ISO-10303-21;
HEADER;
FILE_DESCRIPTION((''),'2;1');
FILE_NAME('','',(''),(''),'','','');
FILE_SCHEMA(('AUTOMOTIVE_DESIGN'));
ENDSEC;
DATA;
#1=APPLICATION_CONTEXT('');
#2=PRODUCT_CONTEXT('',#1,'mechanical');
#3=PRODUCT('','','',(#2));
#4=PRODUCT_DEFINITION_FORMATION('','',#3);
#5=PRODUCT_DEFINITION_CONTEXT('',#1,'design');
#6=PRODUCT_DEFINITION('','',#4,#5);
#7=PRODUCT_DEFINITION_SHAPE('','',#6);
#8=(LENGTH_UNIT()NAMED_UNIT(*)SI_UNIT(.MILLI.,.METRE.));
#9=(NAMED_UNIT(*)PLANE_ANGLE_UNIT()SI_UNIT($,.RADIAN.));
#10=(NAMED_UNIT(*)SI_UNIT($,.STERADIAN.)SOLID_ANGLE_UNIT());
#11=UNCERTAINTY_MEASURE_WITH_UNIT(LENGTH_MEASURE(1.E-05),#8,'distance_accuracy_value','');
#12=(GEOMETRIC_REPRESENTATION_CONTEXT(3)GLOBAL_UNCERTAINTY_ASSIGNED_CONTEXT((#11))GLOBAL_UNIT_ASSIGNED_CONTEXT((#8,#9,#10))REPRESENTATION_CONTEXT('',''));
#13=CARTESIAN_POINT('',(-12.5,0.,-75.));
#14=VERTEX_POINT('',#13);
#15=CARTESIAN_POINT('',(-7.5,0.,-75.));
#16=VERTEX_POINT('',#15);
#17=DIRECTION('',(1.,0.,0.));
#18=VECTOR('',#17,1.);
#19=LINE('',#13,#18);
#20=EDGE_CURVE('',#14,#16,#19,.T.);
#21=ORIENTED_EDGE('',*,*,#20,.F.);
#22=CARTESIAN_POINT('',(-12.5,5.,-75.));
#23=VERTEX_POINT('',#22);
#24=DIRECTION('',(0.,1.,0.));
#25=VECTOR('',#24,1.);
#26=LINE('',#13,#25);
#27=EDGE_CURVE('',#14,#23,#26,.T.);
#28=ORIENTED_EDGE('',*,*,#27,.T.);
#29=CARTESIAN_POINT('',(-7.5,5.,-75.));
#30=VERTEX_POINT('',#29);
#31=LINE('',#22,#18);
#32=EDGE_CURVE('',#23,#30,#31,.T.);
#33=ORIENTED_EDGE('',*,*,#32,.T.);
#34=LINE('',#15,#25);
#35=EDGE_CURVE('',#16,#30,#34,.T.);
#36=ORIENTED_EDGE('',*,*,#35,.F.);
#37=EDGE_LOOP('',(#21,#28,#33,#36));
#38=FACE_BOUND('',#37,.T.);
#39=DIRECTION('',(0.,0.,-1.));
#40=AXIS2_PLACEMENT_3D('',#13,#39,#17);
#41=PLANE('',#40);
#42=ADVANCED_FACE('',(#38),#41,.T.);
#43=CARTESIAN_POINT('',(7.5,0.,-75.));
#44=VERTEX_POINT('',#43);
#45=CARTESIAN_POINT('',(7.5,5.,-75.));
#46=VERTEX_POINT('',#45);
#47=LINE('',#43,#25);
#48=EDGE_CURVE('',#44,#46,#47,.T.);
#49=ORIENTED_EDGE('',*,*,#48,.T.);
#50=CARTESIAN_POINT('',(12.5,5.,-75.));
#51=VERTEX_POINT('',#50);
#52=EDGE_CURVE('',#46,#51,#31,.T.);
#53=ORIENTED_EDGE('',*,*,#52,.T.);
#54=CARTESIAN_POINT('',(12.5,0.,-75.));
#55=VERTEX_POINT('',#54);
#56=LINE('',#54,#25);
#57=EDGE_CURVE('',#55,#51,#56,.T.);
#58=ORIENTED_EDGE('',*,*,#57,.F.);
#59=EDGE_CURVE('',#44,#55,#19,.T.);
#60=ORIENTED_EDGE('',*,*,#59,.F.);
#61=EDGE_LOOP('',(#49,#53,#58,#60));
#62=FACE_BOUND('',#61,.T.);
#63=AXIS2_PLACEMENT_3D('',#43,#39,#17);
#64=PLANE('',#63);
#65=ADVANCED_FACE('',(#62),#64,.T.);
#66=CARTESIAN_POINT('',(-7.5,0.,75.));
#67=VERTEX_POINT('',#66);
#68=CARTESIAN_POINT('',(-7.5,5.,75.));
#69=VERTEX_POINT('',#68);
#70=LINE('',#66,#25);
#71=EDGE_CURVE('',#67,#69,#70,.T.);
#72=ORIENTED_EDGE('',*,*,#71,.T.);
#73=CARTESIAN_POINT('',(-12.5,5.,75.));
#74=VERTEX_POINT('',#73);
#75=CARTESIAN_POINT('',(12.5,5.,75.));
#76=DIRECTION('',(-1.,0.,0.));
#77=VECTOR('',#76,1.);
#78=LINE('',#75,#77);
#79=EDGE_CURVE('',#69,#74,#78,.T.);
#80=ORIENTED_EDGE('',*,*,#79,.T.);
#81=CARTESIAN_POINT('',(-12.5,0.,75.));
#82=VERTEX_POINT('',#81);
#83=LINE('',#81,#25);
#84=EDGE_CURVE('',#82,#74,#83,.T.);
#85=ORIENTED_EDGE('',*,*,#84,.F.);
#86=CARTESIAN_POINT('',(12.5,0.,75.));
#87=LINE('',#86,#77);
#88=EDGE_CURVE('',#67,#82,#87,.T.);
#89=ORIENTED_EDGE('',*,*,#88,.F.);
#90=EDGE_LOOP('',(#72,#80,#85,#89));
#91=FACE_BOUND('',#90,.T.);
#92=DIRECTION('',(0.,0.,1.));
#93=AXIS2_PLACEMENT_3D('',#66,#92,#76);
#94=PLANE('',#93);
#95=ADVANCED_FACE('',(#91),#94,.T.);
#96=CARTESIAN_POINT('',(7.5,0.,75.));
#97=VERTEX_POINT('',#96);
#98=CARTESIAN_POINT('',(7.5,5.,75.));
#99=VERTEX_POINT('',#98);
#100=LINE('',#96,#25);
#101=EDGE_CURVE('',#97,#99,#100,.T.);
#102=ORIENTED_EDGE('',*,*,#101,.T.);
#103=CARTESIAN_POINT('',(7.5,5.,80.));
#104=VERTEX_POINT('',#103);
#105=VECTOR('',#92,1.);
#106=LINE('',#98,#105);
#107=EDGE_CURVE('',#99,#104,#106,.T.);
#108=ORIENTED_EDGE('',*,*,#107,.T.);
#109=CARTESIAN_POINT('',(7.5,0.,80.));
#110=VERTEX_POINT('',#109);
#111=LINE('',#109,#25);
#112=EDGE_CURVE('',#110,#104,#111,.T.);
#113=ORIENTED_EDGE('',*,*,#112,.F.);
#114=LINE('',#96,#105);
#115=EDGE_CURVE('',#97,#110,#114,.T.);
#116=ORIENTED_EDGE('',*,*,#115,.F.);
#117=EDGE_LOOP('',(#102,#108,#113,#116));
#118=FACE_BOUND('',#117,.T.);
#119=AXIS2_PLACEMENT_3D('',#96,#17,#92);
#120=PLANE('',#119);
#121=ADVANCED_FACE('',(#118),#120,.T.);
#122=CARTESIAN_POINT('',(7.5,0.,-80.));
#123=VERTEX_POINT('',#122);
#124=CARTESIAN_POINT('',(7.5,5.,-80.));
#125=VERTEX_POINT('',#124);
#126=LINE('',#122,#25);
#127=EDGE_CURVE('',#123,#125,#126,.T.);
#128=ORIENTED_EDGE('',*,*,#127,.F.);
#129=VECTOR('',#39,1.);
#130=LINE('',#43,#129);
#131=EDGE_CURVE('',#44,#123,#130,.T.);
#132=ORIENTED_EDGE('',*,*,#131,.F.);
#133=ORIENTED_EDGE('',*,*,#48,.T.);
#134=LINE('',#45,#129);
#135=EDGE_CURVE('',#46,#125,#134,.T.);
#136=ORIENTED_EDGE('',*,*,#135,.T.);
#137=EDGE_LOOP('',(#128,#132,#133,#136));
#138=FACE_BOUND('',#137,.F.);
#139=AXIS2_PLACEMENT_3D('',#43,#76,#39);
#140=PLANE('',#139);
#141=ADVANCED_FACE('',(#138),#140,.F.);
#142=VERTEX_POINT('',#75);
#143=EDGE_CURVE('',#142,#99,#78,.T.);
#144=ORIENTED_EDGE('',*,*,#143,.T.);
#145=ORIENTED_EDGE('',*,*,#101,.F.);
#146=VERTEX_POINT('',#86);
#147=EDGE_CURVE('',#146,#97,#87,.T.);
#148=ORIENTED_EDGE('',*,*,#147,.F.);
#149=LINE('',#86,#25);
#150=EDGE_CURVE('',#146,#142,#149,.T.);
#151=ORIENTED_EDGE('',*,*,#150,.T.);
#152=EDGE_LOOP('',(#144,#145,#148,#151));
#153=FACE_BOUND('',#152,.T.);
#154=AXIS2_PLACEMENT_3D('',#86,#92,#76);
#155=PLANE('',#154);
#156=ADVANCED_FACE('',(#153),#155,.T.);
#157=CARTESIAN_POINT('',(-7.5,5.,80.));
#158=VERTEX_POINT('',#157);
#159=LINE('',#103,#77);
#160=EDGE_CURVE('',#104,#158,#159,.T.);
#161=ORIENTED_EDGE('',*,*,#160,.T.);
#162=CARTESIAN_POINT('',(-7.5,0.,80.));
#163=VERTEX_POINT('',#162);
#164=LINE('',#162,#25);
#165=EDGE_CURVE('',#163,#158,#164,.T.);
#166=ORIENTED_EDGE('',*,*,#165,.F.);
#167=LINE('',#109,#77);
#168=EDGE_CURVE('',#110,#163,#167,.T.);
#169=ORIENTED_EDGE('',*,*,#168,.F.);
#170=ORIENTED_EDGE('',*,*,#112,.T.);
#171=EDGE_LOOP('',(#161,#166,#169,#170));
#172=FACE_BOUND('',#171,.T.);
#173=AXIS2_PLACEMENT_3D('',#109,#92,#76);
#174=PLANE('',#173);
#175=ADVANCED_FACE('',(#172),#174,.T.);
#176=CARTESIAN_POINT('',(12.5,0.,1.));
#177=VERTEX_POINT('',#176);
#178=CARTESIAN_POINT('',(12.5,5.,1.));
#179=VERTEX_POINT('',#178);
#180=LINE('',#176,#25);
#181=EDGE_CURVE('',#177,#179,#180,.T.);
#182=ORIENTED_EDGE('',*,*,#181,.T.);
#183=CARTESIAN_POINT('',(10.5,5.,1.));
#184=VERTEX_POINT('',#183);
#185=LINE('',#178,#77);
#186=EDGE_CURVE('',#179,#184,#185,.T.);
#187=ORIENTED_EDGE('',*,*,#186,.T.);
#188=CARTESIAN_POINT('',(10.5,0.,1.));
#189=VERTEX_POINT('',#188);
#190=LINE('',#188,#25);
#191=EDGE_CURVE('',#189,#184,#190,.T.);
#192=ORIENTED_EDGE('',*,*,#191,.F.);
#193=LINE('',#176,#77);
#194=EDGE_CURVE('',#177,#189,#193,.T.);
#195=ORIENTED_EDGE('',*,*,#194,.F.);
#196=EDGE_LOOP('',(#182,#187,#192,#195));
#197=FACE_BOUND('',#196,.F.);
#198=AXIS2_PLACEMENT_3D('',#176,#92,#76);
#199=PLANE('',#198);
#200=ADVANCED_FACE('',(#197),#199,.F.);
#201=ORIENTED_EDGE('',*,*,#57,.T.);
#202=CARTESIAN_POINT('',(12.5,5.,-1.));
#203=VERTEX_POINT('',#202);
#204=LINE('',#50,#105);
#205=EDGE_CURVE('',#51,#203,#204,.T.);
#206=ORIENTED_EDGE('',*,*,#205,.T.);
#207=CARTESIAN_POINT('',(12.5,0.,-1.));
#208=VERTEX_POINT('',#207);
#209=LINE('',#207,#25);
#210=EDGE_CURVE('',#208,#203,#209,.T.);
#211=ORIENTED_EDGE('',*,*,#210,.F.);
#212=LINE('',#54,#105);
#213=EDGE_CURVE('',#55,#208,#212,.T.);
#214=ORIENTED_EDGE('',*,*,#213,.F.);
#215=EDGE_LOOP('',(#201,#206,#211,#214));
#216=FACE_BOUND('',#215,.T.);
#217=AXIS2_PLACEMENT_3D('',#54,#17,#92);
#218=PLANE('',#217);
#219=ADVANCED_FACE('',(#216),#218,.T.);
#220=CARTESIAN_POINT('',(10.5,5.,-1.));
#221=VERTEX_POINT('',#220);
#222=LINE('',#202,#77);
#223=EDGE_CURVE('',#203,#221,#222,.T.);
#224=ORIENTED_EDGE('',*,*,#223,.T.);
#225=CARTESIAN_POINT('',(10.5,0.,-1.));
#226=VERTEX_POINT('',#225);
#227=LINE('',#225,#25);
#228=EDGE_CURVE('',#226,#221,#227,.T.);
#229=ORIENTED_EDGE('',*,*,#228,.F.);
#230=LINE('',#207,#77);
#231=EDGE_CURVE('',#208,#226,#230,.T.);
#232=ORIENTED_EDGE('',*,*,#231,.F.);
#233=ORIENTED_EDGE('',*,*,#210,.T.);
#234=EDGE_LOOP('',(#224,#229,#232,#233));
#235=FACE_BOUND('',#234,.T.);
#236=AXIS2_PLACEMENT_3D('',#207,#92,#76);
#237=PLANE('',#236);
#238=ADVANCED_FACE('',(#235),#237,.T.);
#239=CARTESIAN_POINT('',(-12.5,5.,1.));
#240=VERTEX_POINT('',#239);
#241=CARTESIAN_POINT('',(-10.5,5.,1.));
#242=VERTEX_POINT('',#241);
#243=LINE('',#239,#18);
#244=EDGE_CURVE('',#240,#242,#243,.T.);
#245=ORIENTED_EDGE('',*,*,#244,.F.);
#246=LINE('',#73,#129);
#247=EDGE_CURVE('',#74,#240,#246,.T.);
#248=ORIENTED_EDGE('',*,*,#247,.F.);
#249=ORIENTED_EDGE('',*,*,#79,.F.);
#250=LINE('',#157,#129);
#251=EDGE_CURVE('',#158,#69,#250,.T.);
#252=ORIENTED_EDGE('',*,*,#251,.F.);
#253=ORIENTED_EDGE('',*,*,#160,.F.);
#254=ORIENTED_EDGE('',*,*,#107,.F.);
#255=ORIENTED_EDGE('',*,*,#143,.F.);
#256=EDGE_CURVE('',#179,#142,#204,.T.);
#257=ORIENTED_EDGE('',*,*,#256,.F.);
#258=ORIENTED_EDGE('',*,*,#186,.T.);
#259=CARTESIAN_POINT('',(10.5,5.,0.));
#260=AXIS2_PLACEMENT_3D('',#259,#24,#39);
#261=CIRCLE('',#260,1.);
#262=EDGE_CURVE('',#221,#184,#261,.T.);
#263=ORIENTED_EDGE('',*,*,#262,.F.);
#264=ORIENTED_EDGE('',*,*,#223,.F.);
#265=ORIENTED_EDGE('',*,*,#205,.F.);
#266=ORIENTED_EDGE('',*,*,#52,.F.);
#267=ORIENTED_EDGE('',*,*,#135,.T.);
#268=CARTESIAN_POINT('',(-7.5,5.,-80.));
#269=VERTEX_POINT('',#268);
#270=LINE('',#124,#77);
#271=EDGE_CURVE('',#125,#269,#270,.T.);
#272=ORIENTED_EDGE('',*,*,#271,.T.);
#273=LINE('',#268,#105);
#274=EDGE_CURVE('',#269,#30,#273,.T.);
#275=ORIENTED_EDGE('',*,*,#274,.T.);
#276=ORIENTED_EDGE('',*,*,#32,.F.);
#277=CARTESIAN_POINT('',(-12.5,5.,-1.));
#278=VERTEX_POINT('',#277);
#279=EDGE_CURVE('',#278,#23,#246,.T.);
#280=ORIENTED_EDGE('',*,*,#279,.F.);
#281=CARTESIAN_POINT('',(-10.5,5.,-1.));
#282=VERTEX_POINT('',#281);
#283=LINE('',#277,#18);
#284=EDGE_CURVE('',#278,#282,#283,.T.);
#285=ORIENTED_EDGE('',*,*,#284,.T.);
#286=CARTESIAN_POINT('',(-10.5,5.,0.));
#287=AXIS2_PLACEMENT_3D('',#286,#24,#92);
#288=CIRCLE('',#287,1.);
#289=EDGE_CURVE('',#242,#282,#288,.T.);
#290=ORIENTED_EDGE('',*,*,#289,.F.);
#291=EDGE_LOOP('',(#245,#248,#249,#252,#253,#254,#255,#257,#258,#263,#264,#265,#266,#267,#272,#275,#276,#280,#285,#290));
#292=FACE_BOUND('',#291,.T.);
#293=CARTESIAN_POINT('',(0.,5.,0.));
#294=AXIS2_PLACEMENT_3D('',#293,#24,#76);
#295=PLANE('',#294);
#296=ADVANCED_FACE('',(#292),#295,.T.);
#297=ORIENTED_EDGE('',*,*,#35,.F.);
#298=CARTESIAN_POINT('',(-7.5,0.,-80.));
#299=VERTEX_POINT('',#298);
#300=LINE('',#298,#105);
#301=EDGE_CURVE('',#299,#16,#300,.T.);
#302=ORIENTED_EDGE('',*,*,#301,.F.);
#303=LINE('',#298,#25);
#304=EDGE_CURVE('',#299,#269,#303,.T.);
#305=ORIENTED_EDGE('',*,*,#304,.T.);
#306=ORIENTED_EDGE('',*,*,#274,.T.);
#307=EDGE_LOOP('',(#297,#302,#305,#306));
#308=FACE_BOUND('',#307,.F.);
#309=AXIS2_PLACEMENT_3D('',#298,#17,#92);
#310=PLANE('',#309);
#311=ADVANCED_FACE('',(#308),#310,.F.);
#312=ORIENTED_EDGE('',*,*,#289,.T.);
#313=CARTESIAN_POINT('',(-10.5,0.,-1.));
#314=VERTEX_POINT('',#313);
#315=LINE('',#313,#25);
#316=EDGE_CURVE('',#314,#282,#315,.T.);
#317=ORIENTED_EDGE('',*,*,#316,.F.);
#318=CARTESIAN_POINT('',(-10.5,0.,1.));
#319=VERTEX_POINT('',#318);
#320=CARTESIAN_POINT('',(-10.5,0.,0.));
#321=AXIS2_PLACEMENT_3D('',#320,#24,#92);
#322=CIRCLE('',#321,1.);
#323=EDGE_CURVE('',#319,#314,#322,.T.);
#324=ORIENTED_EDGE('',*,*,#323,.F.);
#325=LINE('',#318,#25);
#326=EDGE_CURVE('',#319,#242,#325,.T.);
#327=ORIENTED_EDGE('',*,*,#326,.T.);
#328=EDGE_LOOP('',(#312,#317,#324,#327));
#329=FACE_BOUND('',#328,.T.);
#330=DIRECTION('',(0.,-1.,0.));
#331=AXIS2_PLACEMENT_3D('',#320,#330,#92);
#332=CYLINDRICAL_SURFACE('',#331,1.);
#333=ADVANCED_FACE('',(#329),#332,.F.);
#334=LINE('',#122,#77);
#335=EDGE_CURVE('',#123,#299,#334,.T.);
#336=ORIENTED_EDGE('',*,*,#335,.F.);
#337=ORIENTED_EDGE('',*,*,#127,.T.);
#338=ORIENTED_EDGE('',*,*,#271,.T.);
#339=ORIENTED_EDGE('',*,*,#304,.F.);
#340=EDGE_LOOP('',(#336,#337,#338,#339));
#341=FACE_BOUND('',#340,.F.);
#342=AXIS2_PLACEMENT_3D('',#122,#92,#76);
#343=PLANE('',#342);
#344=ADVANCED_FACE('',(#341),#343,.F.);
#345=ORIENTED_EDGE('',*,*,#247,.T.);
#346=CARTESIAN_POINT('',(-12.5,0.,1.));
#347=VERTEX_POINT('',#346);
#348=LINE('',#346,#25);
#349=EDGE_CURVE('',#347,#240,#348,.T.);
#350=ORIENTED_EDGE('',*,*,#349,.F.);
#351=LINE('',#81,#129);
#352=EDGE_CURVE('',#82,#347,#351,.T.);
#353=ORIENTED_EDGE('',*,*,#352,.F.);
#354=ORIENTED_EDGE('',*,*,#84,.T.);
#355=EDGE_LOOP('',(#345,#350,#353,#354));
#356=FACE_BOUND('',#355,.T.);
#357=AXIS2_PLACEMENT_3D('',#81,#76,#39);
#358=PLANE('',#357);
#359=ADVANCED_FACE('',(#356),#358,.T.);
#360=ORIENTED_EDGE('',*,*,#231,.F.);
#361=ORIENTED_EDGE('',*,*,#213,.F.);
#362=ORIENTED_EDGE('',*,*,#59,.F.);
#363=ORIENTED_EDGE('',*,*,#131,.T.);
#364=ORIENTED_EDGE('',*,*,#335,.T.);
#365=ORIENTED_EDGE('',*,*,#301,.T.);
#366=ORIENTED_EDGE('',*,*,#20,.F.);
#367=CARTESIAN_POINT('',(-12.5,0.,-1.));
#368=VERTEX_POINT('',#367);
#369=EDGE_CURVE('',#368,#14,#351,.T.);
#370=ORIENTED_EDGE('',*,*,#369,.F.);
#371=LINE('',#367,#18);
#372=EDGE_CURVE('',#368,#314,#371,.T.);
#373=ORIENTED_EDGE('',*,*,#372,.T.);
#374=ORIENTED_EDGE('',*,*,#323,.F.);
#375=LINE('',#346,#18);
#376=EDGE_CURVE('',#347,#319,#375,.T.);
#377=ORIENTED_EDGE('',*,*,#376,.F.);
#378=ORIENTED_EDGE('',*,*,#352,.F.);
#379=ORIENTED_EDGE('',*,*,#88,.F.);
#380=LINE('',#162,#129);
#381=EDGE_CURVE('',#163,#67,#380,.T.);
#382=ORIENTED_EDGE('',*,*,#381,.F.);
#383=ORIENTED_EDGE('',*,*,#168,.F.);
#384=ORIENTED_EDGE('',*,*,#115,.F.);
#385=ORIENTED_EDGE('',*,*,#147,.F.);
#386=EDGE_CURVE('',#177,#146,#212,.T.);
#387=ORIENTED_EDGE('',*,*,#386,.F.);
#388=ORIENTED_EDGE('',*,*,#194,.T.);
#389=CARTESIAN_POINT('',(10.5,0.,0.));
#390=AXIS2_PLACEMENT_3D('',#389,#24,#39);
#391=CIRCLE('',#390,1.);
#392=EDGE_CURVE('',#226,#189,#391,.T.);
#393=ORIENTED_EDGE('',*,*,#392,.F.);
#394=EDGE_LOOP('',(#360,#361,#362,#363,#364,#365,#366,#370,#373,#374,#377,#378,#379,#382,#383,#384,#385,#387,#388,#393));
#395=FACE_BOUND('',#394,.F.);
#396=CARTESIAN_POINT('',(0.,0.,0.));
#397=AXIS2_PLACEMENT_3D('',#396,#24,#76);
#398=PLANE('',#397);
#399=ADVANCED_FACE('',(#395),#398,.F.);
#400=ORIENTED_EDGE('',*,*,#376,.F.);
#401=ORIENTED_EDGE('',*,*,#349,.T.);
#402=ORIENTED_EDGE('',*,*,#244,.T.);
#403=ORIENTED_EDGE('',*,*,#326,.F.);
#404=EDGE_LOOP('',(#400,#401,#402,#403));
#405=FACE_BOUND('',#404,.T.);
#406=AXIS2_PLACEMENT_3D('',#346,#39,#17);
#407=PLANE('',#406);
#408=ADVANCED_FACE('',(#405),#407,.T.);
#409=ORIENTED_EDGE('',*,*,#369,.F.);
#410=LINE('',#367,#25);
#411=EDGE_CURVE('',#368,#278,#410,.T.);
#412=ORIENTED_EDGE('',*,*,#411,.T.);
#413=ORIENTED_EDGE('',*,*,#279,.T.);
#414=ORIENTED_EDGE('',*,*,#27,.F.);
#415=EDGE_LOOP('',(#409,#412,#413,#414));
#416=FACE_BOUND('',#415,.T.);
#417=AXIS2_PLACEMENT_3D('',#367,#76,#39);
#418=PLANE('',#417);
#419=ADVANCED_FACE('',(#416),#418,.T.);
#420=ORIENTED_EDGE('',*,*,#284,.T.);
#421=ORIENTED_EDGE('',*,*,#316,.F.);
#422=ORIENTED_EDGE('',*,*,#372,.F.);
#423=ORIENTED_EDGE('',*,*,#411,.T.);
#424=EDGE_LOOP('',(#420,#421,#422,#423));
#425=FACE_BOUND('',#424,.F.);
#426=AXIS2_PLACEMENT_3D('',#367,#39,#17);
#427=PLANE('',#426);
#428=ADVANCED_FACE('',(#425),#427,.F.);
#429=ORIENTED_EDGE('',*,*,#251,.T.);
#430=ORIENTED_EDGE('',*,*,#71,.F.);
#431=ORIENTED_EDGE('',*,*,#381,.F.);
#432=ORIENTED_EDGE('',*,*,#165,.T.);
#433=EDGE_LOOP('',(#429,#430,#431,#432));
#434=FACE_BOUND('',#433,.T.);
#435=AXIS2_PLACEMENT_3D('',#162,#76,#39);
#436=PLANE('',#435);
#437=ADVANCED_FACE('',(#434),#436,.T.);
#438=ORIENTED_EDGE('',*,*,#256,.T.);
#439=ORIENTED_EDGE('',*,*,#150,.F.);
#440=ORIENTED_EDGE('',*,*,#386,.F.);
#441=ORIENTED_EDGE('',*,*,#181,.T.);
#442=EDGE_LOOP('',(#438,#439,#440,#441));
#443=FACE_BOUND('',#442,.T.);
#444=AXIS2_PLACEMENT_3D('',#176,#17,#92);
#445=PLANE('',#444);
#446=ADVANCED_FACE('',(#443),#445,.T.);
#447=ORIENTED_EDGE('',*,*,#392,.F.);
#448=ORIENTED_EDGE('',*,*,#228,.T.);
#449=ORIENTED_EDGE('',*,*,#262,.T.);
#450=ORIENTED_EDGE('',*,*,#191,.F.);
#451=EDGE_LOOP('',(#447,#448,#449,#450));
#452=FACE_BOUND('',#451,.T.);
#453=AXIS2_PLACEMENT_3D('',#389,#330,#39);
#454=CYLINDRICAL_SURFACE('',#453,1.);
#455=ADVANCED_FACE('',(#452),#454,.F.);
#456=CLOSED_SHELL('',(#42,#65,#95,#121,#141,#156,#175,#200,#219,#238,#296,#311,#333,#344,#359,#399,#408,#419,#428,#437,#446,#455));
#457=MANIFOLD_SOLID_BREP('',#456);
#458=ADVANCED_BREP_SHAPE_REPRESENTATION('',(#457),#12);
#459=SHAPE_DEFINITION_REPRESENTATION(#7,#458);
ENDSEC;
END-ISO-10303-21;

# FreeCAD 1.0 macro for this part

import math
import FreeCAD as App
import Part
import Sketcher

V = App.Vector

doc = App.newDocument("Part")
body = doc.addObject("PartDesign::Body", "Body")

sketch1 = doc.addObject("Sketcher::SketchObject", "Sketch")
body.addObject(sketch1)
sketch1.AttachmentSupport = (doc.XZ_Plane, [""])
sketch1.MapMode = "FlatFace"
sketch1.addGeometry([
    Part.LineSegment(V(-7.5, -75, 0), V(-12.5, -75, 0)),
    Part.LineSegment(V(-12.5, -75, 0), V(-12.5, -1, 0)),
    Part.LineSegment(V(-12.5, -1, 0), V(-10.5, -1, 0)),
    Part.ArcOfCircle(Part.Circle(V(-10.5, 0, 0), V(0, 0, 1), 1), math.radians(-90), math.radians(90)),
    Part.LineSegment(V(-10.5, 1, 0), V(-12.5, 1, 0)),
    Part.LineSegment(V(-12.5, 1, 0), V(-12.5, 75, 0)),
    Part.LineSegment(V(-12.5, 75, 0), V(-7.5, 75, 0)),
    Part.LineSegment(V(-7.5, 75, 0), V(-7.5, 80, 0)),
    Part.LineSegment(V(-7.5, 80, 0), V(7.5, 80, 0)),
    Part.LineSegment(V(7.5, 80, 0), V(7.5, 75, 0)),
    Part.LineSegment(V(7.5, 75, 0), V(12.5, 75, 0)),
    Part.LineSegment(V(12.5, 75, 0), V(12.5, 1, 0)),
    Part.LineSegment(V(12.5, 1, 0), V(10.5, 1, 0)),
    Part.ArcOfCircle(Part.Circle(V(10.5, 0, 0), V(0, 0, 1), 1), math.radians(90), math.radians(270)),
    Part.LineSegment(V(10.5, -1, 0), V(12.5, -1, 0)),
    Part.LineSegment(V(12.5, -1, 0), V(12.5, -75, 0)),
    Part.LineSegment(V(12.5, -75, 0), V(7.5, -75, 0)),
    Part.LineSegment(V(7.5, -75, 0), V(7.5, -80, 0)),
    Part.LineSegment(V(7.5, -80, 0), V(-7.5, -80, 0)),
    Part.LineSegment(V(-7.5, -80, 0), V(-7.5, -75, 0)),
], False)
sketch1.addConstraint([
    Sketcher.Constraint("Coincident", 0, 2, 1, 1),
    Sketcher.Constraint("Coincident", 1, 2, 2, 1),
    Sketcher.Constraint("Tangent", 2, 2, 3, 1),
    Sketcher.Constraint("Tangent", 3, 2, 4, 1),
    Sketcher.Constraint("Coincident", 4, 2, 5, 1),
    Sketcher.Constraint("Coincident", 5, 2, 6, 1),
    Sketcher.Constraint("Coincident", 6, 2, 7, 1),
    Sketcher.Constraint("Coincident", 7, 2, 8, 1),
    Sketcher.Constraint("Coincident", 8, 2, 9, 1),
    Sketcher.Constraint("Coincident", 9, 2, 10, 1),
    Sketcher.Constraint("Coincident", 10, 2, 11, 1),
    Sketcher.Constraint("Coincident", 11, 2, 12, 1),
    Sketcher.Constraint("Tangent", 12, 2, 13, 1),
    Sketcher.Constraint("Tangent", 13, 2, 14, 1),
    Sketcher.Constraint("Coincident", 14, 2, 15, 1),
    Sketcher.Constraint("Coincident", 15, 2, 16, 1),
    Sketcher.Constraint("Coincident", 16, 2, 17, 1),
    Sketcher.Constraint("Coincident", 17, 2, 18, 1),
    Sketcher.Constraint("Coincident", 18, 2, 19, 1),
    Sketcher.Constraint("Coincident", 19, 2, 0, 1),
    Sketcher.Constraint("Horizontal", 0),
    Sketcher.Constraint("Vertical", 1),
    Sketcher.Constraint("Horizontal", 2),
    Sketcher.Constraint("Horizontal", 4),
    Sketcher.Constraint("Vertical", 5),
    Sketcher.Constraint("Horizontal", 6),
    Sketcher.Constraint("Vertical", 7),
    Sketcher.Constraint("Horizontal", 8),
    Sketcher.Constraint("Vertical", 9),
    Sketcher.Constraint("Horizontal", 10),
    Sketcher.Constraint("Vertical", 11),
    Sketcher.Constraint("Horizontal", 12),
    Sketcher.Constraint("Horizontal", 14),
    Sketcher.Constraint("Vertical", 15),
    Sketcher.Constraint("Horizontal", 16),
    Sketcher.Constraint("Vertical", 17),
    Sketcher.Constraint("Horizontal", 18),
    Sketcher.Constraint("Vertical", 19),
    Sketcher.Constraint("Equal", 3, 13),
    Sketcher.Constraint("Symmetric", 3, 3, 13, 3, -1, 1),
    Sketcher.Constraint("Symmetric", 0, 2, 10, 2, -1, 1),
    Sketcher.Constraint("Symmetric", 5, 2, 15, 2, -1, 1),
    Sketcher.Constraint("Symmetric", 7, 2, 17, 2, -1, 1),
    Sketcher.Constraint("Symmetric", 6, 2, 9, 2, -2),
    Sketcher.Constraint("Symmetric", 4, 2, 11, 2, -2),
    Sketcher.Constraint("Vertical", 7, 2, 18, 2),
    Sketcher.Constraint("Equal", 16, 7),
    Sketcher.Constraint("Radius", 3, 1.0),
    Sketcher.Constraint("DistanceX", 0, 2, 0, 1, 5.0),
    Sketcher.Constraint("DistanceX", 2, 1, 2, 2, 2.0),
    Sketcher.Constraint("DistanceX", 8, 1, 8, 2, 15.0),
    Sketcher.Constraint("DistanceY", 1, 1, 1, 2, 74.0),
])
pad1 = doc.addObject("PartDesign::Pad", "Pad")
body.addObject(pad1)
pad1.Profile = sketch1
pad1.Length = 5
pad1.Reversed = True

doc.recompute()
